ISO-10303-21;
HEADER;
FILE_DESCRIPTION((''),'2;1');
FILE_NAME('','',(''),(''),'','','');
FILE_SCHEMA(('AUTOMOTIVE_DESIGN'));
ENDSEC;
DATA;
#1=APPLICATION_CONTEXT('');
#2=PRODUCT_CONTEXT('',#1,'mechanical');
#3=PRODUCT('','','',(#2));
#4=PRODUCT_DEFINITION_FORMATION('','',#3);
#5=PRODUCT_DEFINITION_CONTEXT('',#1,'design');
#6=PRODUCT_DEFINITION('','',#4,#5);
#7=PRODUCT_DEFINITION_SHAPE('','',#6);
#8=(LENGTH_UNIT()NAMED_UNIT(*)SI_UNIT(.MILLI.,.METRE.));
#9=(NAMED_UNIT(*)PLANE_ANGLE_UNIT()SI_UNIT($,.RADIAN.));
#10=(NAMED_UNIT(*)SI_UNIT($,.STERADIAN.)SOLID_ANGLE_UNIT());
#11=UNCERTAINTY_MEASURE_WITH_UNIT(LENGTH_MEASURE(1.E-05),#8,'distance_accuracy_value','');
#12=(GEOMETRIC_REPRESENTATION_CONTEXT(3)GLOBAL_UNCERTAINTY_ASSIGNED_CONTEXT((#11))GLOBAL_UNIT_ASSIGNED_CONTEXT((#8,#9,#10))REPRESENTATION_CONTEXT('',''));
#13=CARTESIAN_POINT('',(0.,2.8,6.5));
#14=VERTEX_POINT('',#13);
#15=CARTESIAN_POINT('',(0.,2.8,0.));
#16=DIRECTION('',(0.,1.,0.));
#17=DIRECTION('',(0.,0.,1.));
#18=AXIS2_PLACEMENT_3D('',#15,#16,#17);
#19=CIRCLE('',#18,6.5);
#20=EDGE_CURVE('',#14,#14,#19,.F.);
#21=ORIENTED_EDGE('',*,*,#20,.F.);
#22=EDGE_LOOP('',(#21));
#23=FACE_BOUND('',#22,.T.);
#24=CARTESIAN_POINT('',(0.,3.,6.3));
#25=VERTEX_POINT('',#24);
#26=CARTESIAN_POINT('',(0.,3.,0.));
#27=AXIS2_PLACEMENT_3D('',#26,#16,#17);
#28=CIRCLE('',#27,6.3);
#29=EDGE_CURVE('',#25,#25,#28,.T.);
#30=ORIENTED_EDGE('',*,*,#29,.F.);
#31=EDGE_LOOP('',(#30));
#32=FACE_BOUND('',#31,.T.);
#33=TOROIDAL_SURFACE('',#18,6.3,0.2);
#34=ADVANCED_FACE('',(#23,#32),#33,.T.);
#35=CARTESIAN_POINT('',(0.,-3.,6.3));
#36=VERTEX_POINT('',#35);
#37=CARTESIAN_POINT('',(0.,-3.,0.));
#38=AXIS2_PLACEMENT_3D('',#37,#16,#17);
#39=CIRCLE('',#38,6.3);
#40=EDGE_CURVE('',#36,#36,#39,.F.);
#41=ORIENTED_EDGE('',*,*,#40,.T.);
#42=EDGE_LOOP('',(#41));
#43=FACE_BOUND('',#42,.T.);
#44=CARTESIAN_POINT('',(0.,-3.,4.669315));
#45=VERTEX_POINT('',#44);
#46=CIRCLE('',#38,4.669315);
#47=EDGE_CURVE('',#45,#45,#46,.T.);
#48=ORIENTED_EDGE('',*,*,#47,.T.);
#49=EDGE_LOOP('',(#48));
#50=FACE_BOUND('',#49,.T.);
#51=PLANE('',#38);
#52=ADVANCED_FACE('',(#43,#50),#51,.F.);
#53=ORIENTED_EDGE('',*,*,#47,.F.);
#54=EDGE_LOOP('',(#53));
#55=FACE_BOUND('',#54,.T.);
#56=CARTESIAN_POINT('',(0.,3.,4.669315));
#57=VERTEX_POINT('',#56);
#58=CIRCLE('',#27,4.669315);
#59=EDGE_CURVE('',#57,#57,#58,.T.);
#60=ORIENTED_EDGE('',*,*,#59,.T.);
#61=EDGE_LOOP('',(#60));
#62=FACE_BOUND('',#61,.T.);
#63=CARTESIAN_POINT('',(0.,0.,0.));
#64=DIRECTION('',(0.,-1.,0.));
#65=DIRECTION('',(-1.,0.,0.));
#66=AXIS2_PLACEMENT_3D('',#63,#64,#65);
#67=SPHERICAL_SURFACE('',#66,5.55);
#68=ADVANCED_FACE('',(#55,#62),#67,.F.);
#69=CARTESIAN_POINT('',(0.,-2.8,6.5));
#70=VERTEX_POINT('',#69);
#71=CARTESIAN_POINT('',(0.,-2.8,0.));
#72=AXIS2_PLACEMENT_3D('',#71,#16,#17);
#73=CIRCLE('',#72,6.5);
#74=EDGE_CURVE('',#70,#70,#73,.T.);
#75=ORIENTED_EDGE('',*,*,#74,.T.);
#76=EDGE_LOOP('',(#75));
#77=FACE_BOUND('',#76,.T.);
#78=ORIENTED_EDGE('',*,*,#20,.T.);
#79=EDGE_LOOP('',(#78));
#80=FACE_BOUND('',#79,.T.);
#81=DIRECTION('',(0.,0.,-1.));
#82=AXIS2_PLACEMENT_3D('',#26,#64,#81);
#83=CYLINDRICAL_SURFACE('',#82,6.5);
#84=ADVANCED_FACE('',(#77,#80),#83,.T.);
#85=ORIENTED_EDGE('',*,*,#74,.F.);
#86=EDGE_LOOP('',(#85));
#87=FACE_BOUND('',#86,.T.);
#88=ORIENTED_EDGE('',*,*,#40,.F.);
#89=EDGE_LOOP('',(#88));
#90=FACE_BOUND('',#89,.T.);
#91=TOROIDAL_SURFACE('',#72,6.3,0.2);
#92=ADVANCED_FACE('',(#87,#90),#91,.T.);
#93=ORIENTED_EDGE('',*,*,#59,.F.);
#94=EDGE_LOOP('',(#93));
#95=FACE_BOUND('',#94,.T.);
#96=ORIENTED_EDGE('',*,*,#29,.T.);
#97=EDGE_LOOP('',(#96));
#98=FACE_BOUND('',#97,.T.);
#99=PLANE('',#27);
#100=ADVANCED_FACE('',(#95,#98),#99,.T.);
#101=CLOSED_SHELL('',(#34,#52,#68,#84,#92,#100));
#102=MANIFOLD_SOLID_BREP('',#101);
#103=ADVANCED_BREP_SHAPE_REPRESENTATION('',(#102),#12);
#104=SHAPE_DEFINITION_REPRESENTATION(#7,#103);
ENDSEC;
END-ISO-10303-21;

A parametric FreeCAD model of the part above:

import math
import FreeCAD as App
import Part
import Sketcher
from FreeCAD import Vector
Q = App.Units.Quantity


def edges_at(feature, points):
    """Names of the edges that pass closest to the given points."""
    edges = feature.Shape.Edges
    near = lambda p: min(range(len(edges)), key=lambda i: edges[i].distToShape(Part.Vertex(*p))[0])
    return sorted({f"Edge{near(p) + 1}" for p in points})

doc = App.newDocument("Part")
params = doc.addObject("Spreadsheet::Sheet", "Params")
for row, (alias, value) in enumerate([
    ("sketch1_diameter", "13 mm"),
    ("pad1_length", "6 mm"),
    ("sketch2_radius", "5.55 mm"),
    ("groove_angle", "360 deg"),
    ("fillet_radius", "0.2 mm"),
], start=1):
    params.set(f"A{row}", alias)
    params.set(f"B{row}", "=" + value)
    params.setAlias(f"B{row}", alias)

body = doc.addObject("PartDesign::Body", "Body")

# Sketch on XZ plane
sketch1 = body.newObject("Sketcher::SketchObject", "Sketch")
sketch1.AttachmentSupport = (doc.getObject("XZ_Plane"), [""])
sketch1.MapMode = "FlatFace"
sketch1.addGeometry(Part.Circle(Vector(0, 0, 0), Vector(0, 0, 1), 6.5), False)
sketch1.addConstraint([
    Sketcher.Constraint("Coincident", 0, 3, -1, 1),
    Sketcher.Constraint("Diameter", 0, Q("13 mm")),
])
sketch1.setExpression("Constraints[1]", "Params.sketch1_diameter")
pad1 = body.newObject("PartDesign::Pad", "Pad")
pad1.Profile = sketch1
pad1.setExpression("Length", "Params.pad1_length")
pad1.Midplane = True

# Sketch on XY plane
sketch2 = body.newObject("Sketcher::SketchObject", "Sketch001")
sketch2.AttachmentSupport = (doc.getObject("XY_Plane"), [""])
sketch2.MapMode = "FlatFace"
sketch2.addGeometry([
    Part.LineSegment(Vector(0, 5.55, 0), Vector(0, -5.55, 0)),
    Part.ArcOfCircle(Part.Circle(Vector(0, 0, 0), Vector(0, 0, 1), 5.55), math.radians(-90), math.radians(90)),
], False)
sketch2.addConstraint([
    Sketcher.Constraint("Coincident", 0, 1, 1, 2),
    Sketcher.Constraint("Coincident", 1, 1, 0, 2),
    Sketcher.Constraint("Vertical", 0),
    Sketcher.Constraint("Coincident", 1, 3, -1, 1),
    Sketcher.Constraint("PointOnObject", 0, 1, -2),
    Sketcher.Constraint("Radius", 1, Q("5.55 mm")),
])
sketch2.setExpression("Constraints[5]", "Params.sketch2_radius")
groove = body.newObject("PartDesign::Groove", "Groove")
groove.Profile = sketch2
groove.ReferenceAxis = (sketch2, ["V_Axis"])
groove.setExpression("Angle", "Params.groove_angle")
doc.recompute()

fillet = body.newObject("PartDesign::Fillet", "Fillet")
fillet.Base = (groove, edges_at(groove, [(-6.5, -3, 0), (-6.5, 3, 0)]))
fillet.setExpression("Radius", "Params.fillet_radius")

doc.recompute()
